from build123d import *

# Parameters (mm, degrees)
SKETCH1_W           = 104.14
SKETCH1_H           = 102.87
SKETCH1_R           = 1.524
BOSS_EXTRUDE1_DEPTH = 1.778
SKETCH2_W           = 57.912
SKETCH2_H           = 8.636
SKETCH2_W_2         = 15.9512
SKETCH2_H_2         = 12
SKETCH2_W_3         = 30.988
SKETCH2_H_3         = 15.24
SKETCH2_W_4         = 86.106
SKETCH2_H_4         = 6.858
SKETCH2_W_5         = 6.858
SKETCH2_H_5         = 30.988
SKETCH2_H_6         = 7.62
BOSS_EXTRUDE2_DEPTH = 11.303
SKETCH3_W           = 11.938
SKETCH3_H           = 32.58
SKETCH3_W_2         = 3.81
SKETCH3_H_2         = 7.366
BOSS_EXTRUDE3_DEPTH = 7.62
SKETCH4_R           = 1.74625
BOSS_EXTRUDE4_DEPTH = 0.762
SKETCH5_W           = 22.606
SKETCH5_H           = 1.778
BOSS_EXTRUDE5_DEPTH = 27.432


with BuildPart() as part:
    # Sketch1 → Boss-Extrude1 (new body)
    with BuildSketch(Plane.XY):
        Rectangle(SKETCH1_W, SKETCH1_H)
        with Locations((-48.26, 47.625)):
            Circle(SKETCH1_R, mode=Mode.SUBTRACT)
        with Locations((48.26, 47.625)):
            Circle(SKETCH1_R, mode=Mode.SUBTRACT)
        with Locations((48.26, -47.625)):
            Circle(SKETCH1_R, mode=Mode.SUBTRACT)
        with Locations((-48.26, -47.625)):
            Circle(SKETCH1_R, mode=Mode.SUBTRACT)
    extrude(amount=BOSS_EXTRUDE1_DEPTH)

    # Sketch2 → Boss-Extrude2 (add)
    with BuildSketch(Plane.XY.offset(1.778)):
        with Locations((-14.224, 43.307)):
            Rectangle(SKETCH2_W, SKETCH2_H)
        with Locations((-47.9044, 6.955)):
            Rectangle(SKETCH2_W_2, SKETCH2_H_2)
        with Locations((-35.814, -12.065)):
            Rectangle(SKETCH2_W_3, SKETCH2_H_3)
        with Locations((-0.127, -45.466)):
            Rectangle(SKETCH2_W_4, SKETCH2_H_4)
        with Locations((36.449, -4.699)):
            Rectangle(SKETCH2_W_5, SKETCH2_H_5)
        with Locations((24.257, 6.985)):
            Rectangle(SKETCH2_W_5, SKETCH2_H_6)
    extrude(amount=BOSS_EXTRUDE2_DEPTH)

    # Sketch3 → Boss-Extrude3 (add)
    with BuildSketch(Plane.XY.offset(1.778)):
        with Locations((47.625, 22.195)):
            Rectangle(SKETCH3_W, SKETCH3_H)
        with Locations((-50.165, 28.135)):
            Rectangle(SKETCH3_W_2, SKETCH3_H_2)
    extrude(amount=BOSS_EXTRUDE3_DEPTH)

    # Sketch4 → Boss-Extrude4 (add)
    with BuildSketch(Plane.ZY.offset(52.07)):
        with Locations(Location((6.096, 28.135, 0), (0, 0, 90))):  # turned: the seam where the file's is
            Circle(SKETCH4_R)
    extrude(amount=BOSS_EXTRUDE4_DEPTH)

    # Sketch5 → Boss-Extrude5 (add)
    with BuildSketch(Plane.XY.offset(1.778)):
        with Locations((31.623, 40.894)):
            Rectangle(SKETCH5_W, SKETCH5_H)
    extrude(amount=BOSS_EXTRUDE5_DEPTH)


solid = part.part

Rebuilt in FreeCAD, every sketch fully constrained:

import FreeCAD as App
import Part
import Sketcher

V = App.Vector
Q = App.Units.Quantity

doc = App.newDocument("Part")
params = doc.addObject("Spreadsheet::Sheet", "Params")
for row, (alias, value) in enumerate([
    ("sketch1_diameter", "0.12 in"),
    ("sketch1_width", "4.1 in"),
    ("sketch1_height", "4.05 in"),
    ("pad1_length", "0.07 in"),
    ("sketch2_height", "0.6 in"),
    ("sketch2_height2", "0.3 in"),
    ("sketch2_width", "2.28 in"),
    ("sketch2_width2", "1.22 in"),
    ("sketch2_width3", "3.39 in"),
    ("pad2_length", "0.445 in"),
    ("sketch3_width", "0.47 in"),
    ("sketch3_width2", "0.15 in"),
    ("sketch3_height", "0.29 in"),
    ("pad3_length", "0.3 in"),
    ("pad4_length", "0.03 in"),
    ("sketch5_width", "0.89 in"),
    ("sketch5_height", "0.07 in"),
    ("pad5_length", "1.08 in"),
], start=1):
    params.set(f"A{row}", alias)
    params.set(f"B{row}", "=" + value)
    params.setAlias(f"B{row}", alias)

body = doc.addObject("PartDesign::Body", "Body")

sketch1 = doc.addObject("Sketcher::SketchObject", "Sketch")
body.addObject(sketch1)
sketch1.AttachmentSupport = (doc.XY_Plane, [""])
sketch1.MapMode = "FlatFace"
sketch1.addGeometry(Part.LineSegment(V(-52.07, 51.435, 0), V(-52.07, -51.435, 0)), False)
sketch1.addGeometry(Part.LineSegment(V(-52.07, -51.435, 0), V(52.07, -51.435, 0)), False)
sketch1.addGeometry(Part.LineSegment(V(52.07, -51.435, 0), V(52.07, 51.435, 0)), False)
sketch1.addGeometry(Part.LineSegment(V(52.07, 51.435, 0), V(-52.07, 51.435, 0)), False)
sketch1.addGeometry(Part.Circle(V(-48.26, -47.625, 0), V(0, 0, 1), 1.524), False)
sketch1.addGeometry(Part.Circle(V(48.26, -47.625, 0), V(0, 0, 1), 1.524), False)
sketch1.addGeometry(Part.Circle(V(-48.26, 47.625, 0), V(0, 0, 1), 1.524), False)
sketch1.addGeometry(Part.Circle(V(48.26, 47.625, 0), V(0, 0, 1), 1.524), False)
sketch1.addConstraint(Sketcher.Constraint("Coincident", 0, 2, 1, 1))
sketch1.addConstraint(Sketcher.Constraint("Coincident", 1, 2, 2, 1))
sketch1.addConstraint(Sketcher.Constraint("Coincident", 2, 2, 3, 1))
sketch1.addConstraint(Sketcher.Constraint("Coincident", 3, 2, 0, 1))
sketch1.addConstraint(Sketcher.Constraint("Vertical", 0))
sketch1.addConstraint(Sketcher.Constraint("Horizontal", 1))
sketch1.addConstraint(Sketcher.Constraint("Vertical", 2))
sketch1.addConstraint(Sketcher.Constraint("Horizontal", 3))
sketch1.addConstraint(Sketcher.Constraint("Equal", 4, 5))
sketch1.addConstraint(Sketcher.Constraint("Equal", 5, 6))
sketch1.addConstraint(Sketcher.Constraint("Equal", 6, 7))
sketch1.addConstraint(Sketcher.Constraint("Symmetric", 5, 3, 6, 3, -1, 1))
sketch1.addConstraint(Sketcher.Constraint("Symmetric", 4, 3, 7, 3, -1, 1))
sketch1.addConstraint(Sketcher.Constraint("Symmetric", 0, 2, 2, 2, -1, 1))
sketch1.addConstraint(Sketcher.Constraint("Symmetric", 4, 3, 5, 3, -2))
sketch1.addConstraint(Sketcher.Constraint("Diameter", 4, Q("0.12 in")))
sketch1.addConstraint(Sketcher.Constraint("DistanceX", 1, 1, 1, 2, Q("4.1 in")))
sketch1.addConstraint(Sketcher.Constraint("DistanceY", 0, 2, 0, 1, Q("4.05 in")))
sketch1.addConstraint(Sketcher.Constraint("DistanceX", 4, 3, -1, 1, Q("1.9 in")))
sketch1.addConstraint(Sketcher.Constraint("DistanceY", 0, 2, 6, 3, Q("3.9 in")))
sketch1.setExpression("Constraints[15]", "Params.sketch1_diameter")
sketch1.setExpression("Constraints[16]", "Params.sketch1_width")
sketch1.setExpression("Constraints[17]", "Params.sketch1_height")
pad1 = doc.addObject("PartDesign::Pad", "Pad")
body.addObject(pad1)
pad1.Profile = sketch1
pad1.setExpression("Length", "Params.pad1_length")

sketch2 = doc.addObject("Sketcher::SketchObject", "Sketch001")
body.addObject(sketch2)
sketch2.AttachmentSupport = (doc.XY_Plane, [""])
sketch2.MapMode = "FlatFace"
sketch2.AttachmentOffset = App.Placement(V(0, 0, 0.07 * 25.4), App.Rotation())
sketch2.addGeometry(Part.LineSegment(V(-43.18, 47.625, 0), V(-43.18, 38.989, 0)), False)
sketch2.addGeometry(Part.LineSegment(V(-43.18, 38.989, 0), V(14.732, 38.989, 0)), False)
sketch2.addGeometry(Part.LineSegment(V(14.732, 38.989, 0), V(14.732, 47.625, 0)), False)
sketch2.addGeometry(Part.LineSegment(V(14.732, 47.625, 0), V(-43.18, 47.625, 0)), False)
sketch2.addGeometry(Part.LineSegment(V(-55.88, 12.955, 0), V(-55.88, 0.955, 0)), False)
sketch2.addGeometry(Part.LineSegment(V(-55.88, 0.955, 0), V(-39.9288, 0.955, 0)), False)
sketch2.addGeometry(Part.LineSegment(V(-39.9288, 0.955, 0), V(-39.9288, 12.955, 0)), False)
sketch2.addGeometry(Part.LineSegment(V(-39.9288, 12.955, 0), V(-55.88, 12.955, 0)), False)
sketch2.addGeometry(Part.LineSegment(V(-51.308, -4.445, 0), V(-51.308, -19.685, 0)), False)
sketch2.addGeometry(Part.LineSegment(V(-51.308, -19.685, 0), V(-20.32, -19.685, 0)), False)
sketch2.addGeometry(Part.LineSegment(V(-20.32, -19.685, 0), V(-20.32, -4.445, 0)), False)
sketch2.addGeometry(Part.LineSegment(V(-20.32, -4.445, 0), V(-51.308, -4.445, 0)), False)
sketch2.addGeometry(Part.LineSegment(V(-43.18, -42.037, 0), V(-43.18, -48.895, 0)), False)
sketch2.addGeometry(Part.LineSegment(V(-43.18, -48.895, 0), V(42.926, -48.895, 0)), False)
sketch2.addGeometry(Part.LineSegment(V(42.926, -48.895, 0), V(42.926, -42.037, 0)), False)
sketch2.addGeometry(Part.LineSegment(V(42.926, -42.037, 0), V(-43.18, -42.037, 0)), False)
sketch2.addGeometry(Part.LineSegment(V(33.02, 10.795, 0), V(33.02, -20.193, 0)), False)
sketch2.addGeometry(Part.LineSegment(V(33.02, -20.193, 0), V(39.878, -20.193, 0)), False)
sketch2.addGeometry(Part.LineSegment(V(39.878, -20.193, 0), V(39.878, 10.795, 0)), False)
sketch2.addGeometry(Part.LineSegment(V(39.878, 10.795, 0), V(33.02, 10.795, 0)), False)
sketch2.addGeometry(Part.LineSegment(V(20.828, 10.795, 0), V(20.828, 3.175, 0)), False)
sketch2.addGeometry(Part.LineSegment(V(20.828, 3.175, 0), V(27.686, 3.175, 0)), False)
sketch2.addGeometry(Part.LineSegment(V(27.686, 3.175, 0), V(27.686, 10.795, 0)), False)
sketch2.addGeometry(Part.LineSegment(V(27.686, 10.795, 0), V(20.828, 10.795, 0)), False)
sketch2.addConstraint(Sketcher.Constraint("Coincident", 0, 2, 1, 1))
sketch2.addConstraint(Sketcher.Constraint("Coincident", 1, 2, 2, 1))
sketch2.addConstraint(Sketcher.Constraint("Coincident", 2, 2, 3, 1))
sketch2.addConstraint(Sketcher.Constraint("Coincident", 3, 2, 0, 1))
sketch2.addConstraint(Sketcher.Constraint("Coincident", 4, 2, 5, 1))
sketch2.addConstraint(Sketcher.Constraint("Coincident", 5, 2, 6, 1))
sketch2.addConstraint(Sketcher.Constraint("Coincident", 6, 2, 7, 1))
sketch2.addConstraint(Sketcher.Constraint("Coincident", 7, 2, 4, 1))
sketch2.addConstraint(Sketcher.Constraint("Coincident", 8, 2, 9, 1))
sketch2.addConstraint(Sketcher.Constraint("Coincident", 9, 2, 10, 1))
sketch2.addConstraint(Sketcher.Constraint("Coincident", 10, 2, 11, 1))
sketch2.addConstraint(Sketcher.Constraint("Coincident", 11, 2, 8, 1))
sketch2.addConstraint(Sketcher.Constraint("Coincident", 12, 2, 13, 1))
sketch2.addConstraint(Sketcher.Constraint("Coincident", 13, 2, 14, 1))
sketch2.addConstraint(Sketcher.Constraint("Coincident", 14, 2, 15, 1))
sketch2.addConstraint(Sketcher.Constraint("Coincident", 15, 2, 12, 1))
sketch2.addConstraint(Sketcher.Constraint("Coincident", 16, 2, 17, 1))
sketch2.addConstraint(Sketcher.Constraint("Coincident", 17, 2, 18, 1))
sketch2.addConstraint(Sketcher.Constraint("Coincident", 18, 2, 19, 1))
sketch2.addConstraint(Sketcher.Constraint("Coincident", 19, 2, 16, 1))
sketch2.addConstraint(Sketcher.Constraint("Coincident", 20, 2, 21, 1))
sketch2.addConstraint(Sketcher.Constraint("Coincident", 21, 2, 22, 1))
sketch2.addConstraint(Sketcher.Constraint("Coincident", 22, 2, 23, 1))
sketch2.addConstraint(Sketcher.Constraint("Coincident", 23, 2, 20, 1))
sketch2.addConstraint(Sketcher.Constraint("Vertical", 0))
sketch2.addConstraint(Sketcher.Constraint("Horizontal", 1))
sketch2.addConstraint(Sketcher.Constraint("Vertical", 2))
sketch2.addConstraint(Sketcher.Constraint("Horizontal", 3))
sketch2.addConstraint(Sketcher.Constraint("Vertical", 4))
sketch2.addConstraint(Sketcher.Constraint("Horizontal", 5))
sketch2.addConstraint(Sketcher.Constraint("Vertical", 6))
sketch2.addConstraint(Sketcher.Constraint("Horizontal", 7))
sketch2.addConstraint(Sketcher.Constraint("Vertical", 8))
sketch2.addConstraint(Sketcher.Constraint("Horizontal", 9))
sketch2.addConstraint(Sketcher.Constraint("Vertical", 10))
sketch2.addConstraint(Sketcher.Constraint("Horizontal", 11))
sketch2.addConstraint(Sketcher.Constraint("Vertical", 12))
sketch2.addConstraint(Sketcher.Constraint("Horizontal", 13))
sketch2.addConstraint(Sketcher.Constraint("Vertical", 14))
sketch2.addConstraint(Sketcher.Constraint("Horizontal", 15))
sketch2.addConstraint(Sketcher.Constraint("Vertical", 16))
sketch2.addConstraint(Sketcher.Constraint("Horizontal", 17))
sketch2.addConstraint(Sketcher.Constraint("Vertical", 18))
sketch2.addConstraint(Sketcher.Constraint("Horizontal", 19))
sketch2.addConstraint(Sketcher.Constraint("Vertical", 20))
sketch2.addConstraint(Sketcher.Constraint("Horizontal", 21))
sketch2.addConstraint(Sketcher.Constraint("Vertical", 22))
sketch2.addConstraint(Sketcher.Constraint("Horizontal", 23))
sketch2.addConstraint(Sketcher.Constraint("Horizontal", 19, 2, 22, 2))
sketch2.addConstraint(Sketcher.Constraint("Vertical", 3, 2, 12, 2))
sketch2.addConstraint(Sketcher.Constraint("Equal", 19, 21))
sketch2.addConstraint(Sketcher.Constraint("Equal", 23, 12))
sketch2.addConstraint(Sketcher.Constraint("Equal", 11, 16))
sketch2.addConstraint(Sketcher.Constraint("DistanceY", 8, 2, 8, 1, Q("0.6 in")))
sketch2.addConstraint(Sketcher.Constraint("DistanceY", 20, 2, 20, 1, Q("0.3 in")))
sketch2.addConstraint(Sketcher.Constraint("DistanceX", 1, 1, 1, 2, Q("2.28 in")))
sketch2.addConstraint(Sketcher.Constraint("DistanceX", 9, 1, 9, 2, Q("1.22 in")))
sketch2.addConstraint(Sketcher.Constraint("DistanceX", 13, 1, 13, 2, Q("3.39 in")))
sketch2.addConstraint(Sketcher.Constraint("DistanceX", 17, 1, 17, 2, Q("0.27 in")))
sketch2.addConstraint(Sketcher.Constraint("DistanceY", 0, 2, 0, 1, Q("0.34 in")))
sketch2.addConstraint(Sketcher.Constraint("DistanceX", 0, 2, -1, 1, Q("1.7 in")))
sketch2.addConstraint(Sketcher.Constraint("DistanceX", 4, 2, -1, 1, Q("2.2 in")))
sketch2.addConstraint(Sketcher.Constraint("DistanceX", 9, 2, -1, 1, Q("0.8 in")))
sketch2.addConstraint(Sketcher.Constraint("DistanceX", -1, 1, 16, 2, Q("1.3 in")))
sketch2.addConstraint(Sketcher.Constraint("DistanceX", 5, 1, 5, 2, Q("0.628 in")))
sketch2.addConstraint(Sketcher.Constraint("DistanceX", -1, 1, 20, 2, Q("0.82 in")))
sketch2.addConstraint(Sketcher.Constraint("DistanceY", 8, 2, 0, 2, Q("2.31 in")))
sketch2.addConstraint(Sketcher.Constraint("DistanceY", 12, 2, 8, 2, Q("1.15 in")))
sketch2.addConstraint(Sketcher.Constraint("DistanceY", 14, 2, 16, 2, Q("0.86 in")))
sketch2.addConstraint(Sketcher.Constraint("DistanceY", -1, 1, 0, 2, Q("1.535 in")))
sketch2.addConstraint(Sketcher.Constraint("DistanceY", 4, 2, 4, 1, Q("12 mm")))
sketch2.addConstraint(Sketcher.Constraint("DistanceY", -1, 1, 4, 2, Q("0.955 mm")))
sketch2.setExpression("Constraints[53]", "Params.sketch2_height")
sketch2.setExpression("Constraints[54]", "Params.sketch2_height2")
sketch2.setExpression("Constraints[55]", "Params.sketch2_width")
sketch2.setExpression("Constraints[56]", "Params.sketch2_width2")
sketch2.setExpression("Constraints[57]", "Params.sketch2_width3")
pad2 = doc.addObject("PartDesign::Pad", "Pad001")
body.addObject(pad2)
pad2.Profile = sketch2
pad2.setExpression("Length", "Params.pad2_length")

sketch3 = doc.addObject("Sketcher::SketchObject", "Sketch002")
body.addObject(sketch3)
sketch3.AttachmentSupport = (doc.XY_Plane, [""])
sketch3.MapMode = "FlatFace"
sketch3.AttachmentOffset = App.Placement(V(0, 0, 0.07 * 25.4), App.Rotation())
sketch3.addGeometry(Part.LineSegment(V(41.656, 38.485, 0), V(41.656, 5.905, 0)), False)
sketch3.addGeometry(Part.LineSegment(V(41.656, 5.905, 0), V(53.594, 5.905, 0)), False)
sketch3.addGeometry(Part.LineSegment(V(53.594, 5.905, 0), V(53.594, 38.485, 0)), False)
sketch3.addGeometry(Part.LineSegment(V(53.594, 38.485, 0), V(41.656, 38.485, 0)), False)
sketch3.addGeometry(Part.LineSegment(V(-52.07, 31.818, 0), V(-52.07, 24.452, 0)), False)
sketch3.addGeometry(Part.LineSegment(V(-52.07, 24.452, 0), V(-48.26, 24.452, 0)), False)
sketch3.addGeometry(Part.LineSegment(V(-48.26, 24.452, 0), V(-48.26, 31.818, 0)), False)
sketch3.addGeometry(Part.LineSegment(V(-48.26, 31.818, 0), V(-52.07, 31.818, 0)), False)
sketch3.addConstraint(Sketcher.Constraint("Coincident", 0, 2, 1, 1))
sketch3.addConstraint(Sketcher.Constraint("Coincident", 1, 2, 2, 1))
sketch3.addConstraint(Sketcher.Constraint("Coincident", 2, 2, 3, 1))
sketch3.addConstraint(Sketcher.Constraint("Coincident", 3, 2, 0, 1))
sketch3.addConstraint(Sketcher.Constraint("Coincident", 4, 2, 5, 1))
sketch3.addConstraint(Sketcher.Constraint("Coincident", 5, 2, 6, 1))
sketch3.addConstraint(Sketcher.Constraint("Coincident", 6, 2, 7, 1))
sketch3.addConstraint(Sketcher.Constraint("Coincident", 7, 2, 4, 1))
sketch3.addConstraint(Sketcher.Constraint("Vertical", 0))
sketch3.addConstraint(Sketcher.Constraint("Horizontal", 1))
sketch3.addConstraint(Sketcher.Constraint("Vertical", 2))
sketch3.addConstraint(Sketcher.Constraint("Horizontal", 3))
sketch3.addConstraint(Sketcher.Constraint("Vertical", 4))
sketch3.addConstraint(Sketcher.Constraint("Horizontal", 5))
sketch3.addConstraint(Sketcher.Constraint("Vertical", 6))
sketch3.addConstraint(Sketcher.Constraint("Horizontal", 7))
sketch3.addConstraint(Sketcher.Constraint("DistanceX", 1, 1, 1, 2, Q("0.47 in")))
sketch3.addConstraint(Sketcher.Constraint("DistanceX", 5, 1, 5, 2, Q("0.15 in")))
sketch3.addConstraint(Sketcher.Constraint("DistanceY", 4, 2, 4, 1, Q("0.29 in")))
sketch3.addConstraint(Sketcher.Constraint("DistanceX", 5, 2, -1, 1, Q("1.9 in")))
sketch3.addConstraint(Sketcher.Constraint("DistanceX", -1, 1, 0, 2, Q("1.64 in")))
sketch3.addConstraint(Sketcher.Constraint("DistanceY", 0, 2, 0, 1, Q("32.58 mm")))
sketch3.addConstraint(Sketcher.Constraint("DistanceY", -1, 1, 0, 2, Q("5.905 mm")))
sketch3.addConstraint(Sketcher.Constraint("DistanceY", -1, 1, 4, 2, Q("24.452 mm")))
sketch3.setExpression("Constraints[16]", "Params.sketch3_width")
sketch3.setExpression("Constraints[17]", "Params.sketch3_width2")
sketch3.setExpression("Constraints[18]", "Params.sketch3_height")
pad3 = doc.addObject("PartDesign::Pad", "Pad002")
body.addObject(pad3)
pad3.Profile = sketch3
pad3.setExpression("Length", "Params.pad3_length")

sketch4 = doc.addObject("Sketcher::SketchObject", "Sketch003")
body.addObject(sketch4)
sketch4.AttachmentSupport = (doc.YZ_Plane, [""])
sketch4.MapMode = "FlatFace"
sketch4.AttachmentOffset = App.Placement(V(0, 0, -2.05 * 25.4), App.Rotation())
sketch4.addGeometry(Part.Circle(V(28.135, 6.096, 0), V(0, 0, 1), 1.74625), False)
sketch4.addConstraint(Sketcher.Constraint("Diameter", 0, Q("0.1375 in")))
sketch4.addConstraint(Sketcher.Constraint("DistanceY", -1, 1, 0, 3, Q("0.24 in")))
sketch4.addConstraint(Sketcher.Constraint("DistanceX", -1, 1, 0, 3, Q("28.135 mm")))
pad4 = doc.addObject("PartDesign::Pad", "Pad003")
body.addObject(pad4)
pad4.Profile = sketch4
pad4.setExpression("Length", "Params.pad4_length")
pad4.Reversed = True

sketch5 = doc.addObject("Sketcher::SketchObject", "Sketch004")
body.addObject(sketch5)
sketch5.AttachmentSupport = (doc.XY_Plane, [""])
sketch5.MapMode = "FlatFace"
sketch5.AttachmentOffset = App.Placement(V(0, 0, 0.07 * 25.4), App.Rotation())
sketch5.addGeometry(Part.LineSegment(V(20.32, 41.783, 0), V(20.32, 40.005, 0)), False)
sketch5.addGeometry(Part.LineSegment(V(20.32, 40.005, 0), V(42.926, 40.005, 0)), False)
sketch5.addGeometry(Part.LineSegment(V(42.926, 40.005, 0), V(42.926, 41.783, 0)), False)
sketch5.addGeometry(Part.LineSegment(V(42.926, 41.783, 0), V(20.32, 41.783, 0)), False)
sketch5.addConstraint(Sketcher.Constraint("Coincident", 0, 2, 1, 1))
sketch5.addConstraint(Sketcher.Constraint("Coincident", 1, 2, 2, 1))
sketch5.addConstraint(Sketcher.Constraint("Coincident", 2, 2, 3, 1))
sketch5.addConstraint(Sketcher.Constraint("Coincident", 3, 2, 0, 1))
sketch5.addConstraint(Sketcher.Constraint("Vertical", 0))
sketch5.addConstraint(Sketcher.Constraint("Horizontal", 1))
sketch5.addConstraint(Sketcher.Constraint("Vertical", 2))
sketch5.addConstraint(Sketcher.Constraint("Horizontal", 3))
sketch5.addConstraint(Sketcher.Constraint("DistanceX", 1, 1, 1, 2, Q("0.89 in")))
sketch5.addConstraint(Sketcher.Constraint("DistanceY", 0, 2, 0, 1, Q("0.07 in")))
sketch5.addConstraint(Sketcher.Constraint("DistanceX", -1, 1, 0, 2, Q("0.8 in")))
sketch5.addConstraint(Sketcher.Constraint("DistanceY", -1, 1, 0, 2, Q("1.575 in")))
sketch5.setExpression("Constraints[8]", "Params.sketch5_width")
sketch5.setExpression("Constraints[9]", "Params.sketch5_height")
pad5 = doc.addObject("PartDesign::Pad", "Pad004")
body.addObject(pad5)
pad5.Profile = sketch5
pad5.setExpression("Length", "Params.pad5_length")

doc.recompute()
